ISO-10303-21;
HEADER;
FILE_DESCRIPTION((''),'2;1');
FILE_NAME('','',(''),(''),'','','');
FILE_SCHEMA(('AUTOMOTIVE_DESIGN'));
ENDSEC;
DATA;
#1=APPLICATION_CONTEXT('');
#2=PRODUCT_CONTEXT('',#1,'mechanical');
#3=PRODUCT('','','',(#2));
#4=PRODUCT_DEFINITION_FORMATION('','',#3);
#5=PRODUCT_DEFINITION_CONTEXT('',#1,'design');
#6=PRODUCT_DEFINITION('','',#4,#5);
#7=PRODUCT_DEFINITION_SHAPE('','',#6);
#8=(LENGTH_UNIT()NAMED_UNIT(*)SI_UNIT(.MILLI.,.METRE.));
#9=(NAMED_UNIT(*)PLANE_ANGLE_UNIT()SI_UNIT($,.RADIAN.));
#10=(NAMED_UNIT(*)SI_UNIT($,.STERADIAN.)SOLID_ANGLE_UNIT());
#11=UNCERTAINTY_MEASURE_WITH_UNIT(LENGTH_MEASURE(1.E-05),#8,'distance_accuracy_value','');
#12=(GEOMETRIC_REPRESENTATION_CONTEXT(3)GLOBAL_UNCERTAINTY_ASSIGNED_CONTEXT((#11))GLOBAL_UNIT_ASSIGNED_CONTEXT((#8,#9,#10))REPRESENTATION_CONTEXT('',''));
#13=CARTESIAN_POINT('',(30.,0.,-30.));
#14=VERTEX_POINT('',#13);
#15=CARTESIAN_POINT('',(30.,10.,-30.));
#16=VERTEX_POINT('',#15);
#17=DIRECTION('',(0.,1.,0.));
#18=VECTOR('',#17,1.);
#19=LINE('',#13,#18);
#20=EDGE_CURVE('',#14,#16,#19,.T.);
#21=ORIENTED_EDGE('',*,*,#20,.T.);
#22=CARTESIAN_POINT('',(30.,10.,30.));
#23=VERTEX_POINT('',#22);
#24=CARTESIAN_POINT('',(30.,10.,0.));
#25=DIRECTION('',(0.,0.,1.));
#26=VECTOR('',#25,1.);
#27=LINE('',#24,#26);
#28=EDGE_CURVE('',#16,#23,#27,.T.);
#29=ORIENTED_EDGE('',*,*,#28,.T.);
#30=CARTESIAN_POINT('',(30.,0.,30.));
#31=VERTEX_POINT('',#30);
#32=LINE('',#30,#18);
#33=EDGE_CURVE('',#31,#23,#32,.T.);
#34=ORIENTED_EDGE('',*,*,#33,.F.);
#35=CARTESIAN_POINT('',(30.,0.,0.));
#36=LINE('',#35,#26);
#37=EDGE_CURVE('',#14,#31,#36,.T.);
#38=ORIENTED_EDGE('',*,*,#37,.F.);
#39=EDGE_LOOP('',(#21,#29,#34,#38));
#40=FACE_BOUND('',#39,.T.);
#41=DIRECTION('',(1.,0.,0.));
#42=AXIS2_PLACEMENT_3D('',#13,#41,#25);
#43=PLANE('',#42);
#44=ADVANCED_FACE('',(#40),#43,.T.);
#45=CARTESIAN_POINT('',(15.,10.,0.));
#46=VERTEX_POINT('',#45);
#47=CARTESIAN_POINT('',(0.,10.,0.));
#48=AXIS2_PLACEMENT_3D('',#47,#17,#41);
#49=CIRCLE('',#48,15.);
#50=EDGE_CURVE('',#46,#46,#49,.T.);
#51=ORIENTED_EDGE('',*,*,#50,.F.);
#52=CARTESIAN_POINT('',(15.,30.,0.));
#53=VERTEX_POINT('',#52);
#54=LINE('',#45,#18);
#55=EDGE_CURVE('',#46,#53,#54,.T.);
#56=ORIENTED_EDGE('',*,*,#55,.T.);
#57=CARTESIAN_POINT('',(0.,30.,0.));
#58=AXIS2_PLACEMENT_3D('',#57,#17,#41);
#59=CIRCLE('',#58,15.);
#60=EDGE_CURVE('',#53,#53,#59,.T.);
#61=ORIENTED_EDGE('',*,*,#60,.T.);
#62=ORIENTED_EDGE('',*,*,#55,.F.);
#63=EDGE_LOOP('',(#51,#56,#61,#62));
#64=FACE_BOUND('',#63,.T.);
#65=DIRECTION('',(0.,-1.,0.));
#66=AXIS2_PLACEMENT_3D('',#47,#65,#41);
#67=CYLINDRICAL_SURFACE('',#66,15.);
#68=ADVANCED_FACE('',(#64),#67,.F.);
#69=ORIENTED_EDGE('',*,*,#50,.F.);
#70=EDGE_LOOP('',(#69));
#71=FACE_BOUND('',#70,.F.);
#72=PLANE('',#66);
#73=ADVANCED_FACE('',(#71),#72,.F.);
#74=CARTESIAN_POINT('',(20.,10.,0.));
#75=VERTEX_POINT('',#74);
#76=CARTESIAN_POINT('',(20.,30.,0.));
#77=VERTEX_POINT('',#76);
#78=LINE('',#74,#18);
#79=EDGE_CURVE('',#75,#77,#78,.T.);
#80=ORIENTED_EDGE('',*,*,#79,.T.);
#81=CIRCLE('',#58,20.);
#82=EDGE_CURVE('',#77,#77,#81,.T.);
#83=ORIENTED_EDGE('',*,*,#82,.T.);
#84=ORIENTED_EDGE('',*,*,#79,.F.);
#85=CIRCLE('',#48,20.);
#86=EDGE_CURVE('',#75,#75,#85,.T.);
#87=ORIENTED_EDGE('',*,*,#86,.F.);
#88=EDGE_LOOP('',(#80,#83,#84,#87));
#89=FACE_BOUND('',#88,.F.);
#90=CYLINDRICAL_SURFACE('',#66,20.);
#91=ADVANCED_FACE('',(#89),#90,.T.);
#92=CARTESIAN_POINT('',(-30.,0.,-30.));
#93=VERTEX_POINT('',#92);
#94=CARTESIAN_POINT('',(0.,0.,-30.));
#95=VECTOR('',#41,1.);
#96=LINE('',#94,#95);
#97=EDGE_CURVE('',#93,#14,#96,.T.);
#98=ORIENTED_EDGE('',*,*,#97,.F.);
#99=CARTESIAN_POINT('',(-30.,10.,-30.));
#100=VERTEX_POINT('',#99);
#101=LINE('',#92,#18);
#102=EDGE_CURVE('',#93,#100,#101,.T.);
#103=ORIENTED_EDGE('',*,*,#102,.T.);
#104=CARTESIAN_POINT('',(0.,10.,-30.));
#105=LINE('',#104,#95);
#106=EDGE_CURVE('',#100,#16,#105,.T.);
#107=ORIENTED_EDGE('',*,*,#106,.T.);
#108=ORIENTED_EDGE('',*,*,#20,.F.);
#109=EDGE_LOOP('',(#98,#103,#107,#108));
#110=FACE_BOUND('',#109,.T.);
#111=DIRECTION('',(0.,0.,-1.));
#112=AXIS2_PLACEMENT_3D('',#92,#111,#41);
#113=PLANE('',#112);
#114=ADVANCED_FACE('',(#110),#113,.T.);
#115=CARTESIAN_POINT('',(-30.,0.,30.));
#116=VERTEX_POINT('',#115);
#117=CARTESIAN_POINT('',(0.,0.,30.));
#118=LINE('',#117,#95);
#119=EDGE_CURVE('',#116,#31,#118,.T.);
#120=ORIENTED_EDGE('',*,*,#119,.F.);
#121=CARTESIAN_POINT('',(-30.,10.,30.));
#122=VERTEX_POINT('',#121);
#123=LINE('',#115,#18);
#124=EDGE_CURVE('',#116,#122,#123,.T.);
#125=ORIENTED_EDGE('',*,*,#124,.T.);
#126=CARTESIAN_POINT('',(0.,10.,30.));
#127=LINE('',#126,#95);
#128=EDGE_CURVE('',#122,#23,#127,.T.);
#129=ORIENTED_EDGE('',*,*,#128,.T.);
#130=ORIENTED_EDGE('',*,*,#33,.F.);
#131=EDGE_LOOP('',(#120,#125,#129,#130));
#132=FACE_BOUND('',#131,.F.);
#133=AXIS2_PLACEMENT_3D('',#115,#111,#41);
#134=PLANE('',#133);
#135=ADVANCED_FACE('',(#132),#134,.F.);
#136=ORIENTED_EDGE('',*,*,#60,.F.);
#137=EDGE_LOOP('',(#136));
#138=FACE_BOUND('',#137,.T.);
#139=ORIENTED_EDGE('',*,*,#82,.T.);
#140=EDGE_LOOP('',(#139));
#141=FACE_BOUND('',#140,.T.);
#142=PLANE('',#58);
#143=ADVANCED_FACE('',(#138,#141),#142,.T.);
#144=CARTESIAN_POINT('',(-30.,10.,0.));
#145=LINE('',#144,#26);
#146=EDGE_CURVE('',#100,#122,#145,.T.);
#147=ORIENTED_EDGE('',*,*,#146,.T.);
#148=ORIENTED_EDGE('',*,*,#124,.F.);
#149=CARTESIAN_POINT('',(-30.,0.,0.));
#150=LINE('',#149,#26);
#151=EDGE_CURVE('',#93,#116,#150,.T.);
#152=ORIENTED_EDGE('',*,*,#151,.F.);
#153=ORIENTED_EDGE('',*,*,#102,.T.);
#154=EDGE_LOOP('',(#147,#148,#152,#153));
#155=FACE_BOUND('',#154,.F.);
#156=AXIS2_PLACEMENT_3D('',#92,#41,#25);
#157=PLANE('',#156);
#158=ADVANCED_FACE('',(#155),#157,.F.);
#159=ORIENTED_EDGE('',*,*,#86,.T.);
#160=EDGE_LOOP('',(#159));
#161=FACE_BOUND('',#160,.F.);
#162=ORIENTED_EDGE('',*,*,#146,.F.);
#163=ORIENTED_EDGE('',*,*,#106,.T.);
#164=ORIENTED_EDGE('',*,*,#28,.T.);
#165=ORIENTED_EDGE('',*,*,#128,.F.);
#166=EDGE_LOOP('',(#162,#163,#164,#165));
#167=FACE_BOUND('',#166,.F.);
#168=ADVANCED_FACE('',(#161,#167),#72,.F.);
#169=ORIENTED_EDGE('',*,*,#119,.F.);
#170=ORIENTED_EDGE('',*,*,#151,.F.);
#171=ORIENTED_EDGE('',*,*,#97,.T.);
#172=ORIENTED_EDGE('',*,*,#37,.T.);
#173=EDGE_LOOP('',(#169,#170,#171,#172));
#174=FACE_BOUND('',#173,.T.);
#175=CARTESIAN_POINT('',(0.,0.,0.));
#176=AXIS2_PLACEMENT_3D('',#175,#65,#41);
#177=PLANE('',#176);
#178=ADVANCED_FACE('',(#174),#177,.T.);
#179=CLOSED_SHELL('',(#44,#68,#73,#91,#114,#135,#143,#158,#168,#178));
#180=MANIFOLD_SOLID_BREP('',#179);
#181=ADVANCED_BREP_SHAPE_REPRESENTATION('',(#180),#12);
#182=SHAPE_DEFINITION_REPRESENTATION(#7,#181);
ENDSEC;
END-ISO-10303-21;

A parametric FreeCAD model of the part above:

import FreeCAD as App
import Part
import Sketcher
Q = App.Units.Quantity


def add_polygon(sketch, points):
    """Adds a closed chain of lines whose ends are joined by coincident constraints."""
    first, n = sketch.GeometryCount, len(points)
    for a, b in zip(points, points[1:] + points[:1]):
        sketch.addGeometry(Part.LineSegment(App.Vector(*a, 0), App.Vector(*b, 0)), False)
    for i in range(n):
        sketch.addConstraint(Sketcher.Constraint("Coincident", first + i, 2, first + (i + 1) % n, 1))

doc = App.newDocument("Part")
body = doc.addObject("PartDesign::Body", "Body")

# Sketch on XZ plane
sketch1 = body.newObject("Sketcher::SketchObject", "Sketch")
sketch1.AttachmentSupport = (doc.getObject("XZ_Plane"), [""])
sketch1.MapMode = "FlatFace"
add_polygon(sketch1, [(-30, 30), (-30, -30), (30, -30), (30, 30)])  # lines 0-3
sketch1.addConstraint([
    Sketcher.Constraint("Vertical", 0),
    Sketcher.Constraint("Horizontal", 1),
    Sketcher.Constraint("Vertical", 2),
    Sketcher.Constraint("Horizontal", 3),
    Sketcher.Constraint("Symmetric", 0, 2, 2, 2, -1, 1),
    Sketcher.Constraint("Equal", 3, 0),
    Sketcher.Constraint("DistanceX", 1, 1, 1, 2, Q("60 mm")),
])
pad1 = body.newObject("PartDesign::Pad", "Pad")
pad1.Profile = sketch1
pad1.Length = 10
pad1.Reversed = True

# Sketch on XZ plane
sketch2 = body.newObject("Sketcher::SketchObject", "Sketch001")
sketch2.AttachmentSupport = (doc.getObject("XZ_Plane"), [""])
sketch2.MapMode = "FlatFace"
sketch2.AttachmentOffset = App.Placement(App.Vector(0, 0, -10), App.Rotation())
sketch2.addGeometry([
    Part.Circle(App.Vector(0, 0, 0), App.Vector(0, 0, 1), 20),
    Part.Circle(App.Vector(0, 0, 0), App.Vector(0, 0, 1), 15),
], False)
sketch2.addConstraint([
    Sketcher.Constraint("Coincident", 0, 3, -1, 1),
    Sketcher.Constraint("Coincident", 1, 3, -1, 1),
    Sketcher.Constraint("Diameter", 0, Q("40 mm")),
    Sketcher.Constraint("Diameter", 1, Q("30 mm")),
])
pad2 = body.newObject("PartDesign::Pad", "Pad001")
pad2.Profile = sketch2
pad2.Length = 20
pad2.Reversed = True

doc.recompute()
